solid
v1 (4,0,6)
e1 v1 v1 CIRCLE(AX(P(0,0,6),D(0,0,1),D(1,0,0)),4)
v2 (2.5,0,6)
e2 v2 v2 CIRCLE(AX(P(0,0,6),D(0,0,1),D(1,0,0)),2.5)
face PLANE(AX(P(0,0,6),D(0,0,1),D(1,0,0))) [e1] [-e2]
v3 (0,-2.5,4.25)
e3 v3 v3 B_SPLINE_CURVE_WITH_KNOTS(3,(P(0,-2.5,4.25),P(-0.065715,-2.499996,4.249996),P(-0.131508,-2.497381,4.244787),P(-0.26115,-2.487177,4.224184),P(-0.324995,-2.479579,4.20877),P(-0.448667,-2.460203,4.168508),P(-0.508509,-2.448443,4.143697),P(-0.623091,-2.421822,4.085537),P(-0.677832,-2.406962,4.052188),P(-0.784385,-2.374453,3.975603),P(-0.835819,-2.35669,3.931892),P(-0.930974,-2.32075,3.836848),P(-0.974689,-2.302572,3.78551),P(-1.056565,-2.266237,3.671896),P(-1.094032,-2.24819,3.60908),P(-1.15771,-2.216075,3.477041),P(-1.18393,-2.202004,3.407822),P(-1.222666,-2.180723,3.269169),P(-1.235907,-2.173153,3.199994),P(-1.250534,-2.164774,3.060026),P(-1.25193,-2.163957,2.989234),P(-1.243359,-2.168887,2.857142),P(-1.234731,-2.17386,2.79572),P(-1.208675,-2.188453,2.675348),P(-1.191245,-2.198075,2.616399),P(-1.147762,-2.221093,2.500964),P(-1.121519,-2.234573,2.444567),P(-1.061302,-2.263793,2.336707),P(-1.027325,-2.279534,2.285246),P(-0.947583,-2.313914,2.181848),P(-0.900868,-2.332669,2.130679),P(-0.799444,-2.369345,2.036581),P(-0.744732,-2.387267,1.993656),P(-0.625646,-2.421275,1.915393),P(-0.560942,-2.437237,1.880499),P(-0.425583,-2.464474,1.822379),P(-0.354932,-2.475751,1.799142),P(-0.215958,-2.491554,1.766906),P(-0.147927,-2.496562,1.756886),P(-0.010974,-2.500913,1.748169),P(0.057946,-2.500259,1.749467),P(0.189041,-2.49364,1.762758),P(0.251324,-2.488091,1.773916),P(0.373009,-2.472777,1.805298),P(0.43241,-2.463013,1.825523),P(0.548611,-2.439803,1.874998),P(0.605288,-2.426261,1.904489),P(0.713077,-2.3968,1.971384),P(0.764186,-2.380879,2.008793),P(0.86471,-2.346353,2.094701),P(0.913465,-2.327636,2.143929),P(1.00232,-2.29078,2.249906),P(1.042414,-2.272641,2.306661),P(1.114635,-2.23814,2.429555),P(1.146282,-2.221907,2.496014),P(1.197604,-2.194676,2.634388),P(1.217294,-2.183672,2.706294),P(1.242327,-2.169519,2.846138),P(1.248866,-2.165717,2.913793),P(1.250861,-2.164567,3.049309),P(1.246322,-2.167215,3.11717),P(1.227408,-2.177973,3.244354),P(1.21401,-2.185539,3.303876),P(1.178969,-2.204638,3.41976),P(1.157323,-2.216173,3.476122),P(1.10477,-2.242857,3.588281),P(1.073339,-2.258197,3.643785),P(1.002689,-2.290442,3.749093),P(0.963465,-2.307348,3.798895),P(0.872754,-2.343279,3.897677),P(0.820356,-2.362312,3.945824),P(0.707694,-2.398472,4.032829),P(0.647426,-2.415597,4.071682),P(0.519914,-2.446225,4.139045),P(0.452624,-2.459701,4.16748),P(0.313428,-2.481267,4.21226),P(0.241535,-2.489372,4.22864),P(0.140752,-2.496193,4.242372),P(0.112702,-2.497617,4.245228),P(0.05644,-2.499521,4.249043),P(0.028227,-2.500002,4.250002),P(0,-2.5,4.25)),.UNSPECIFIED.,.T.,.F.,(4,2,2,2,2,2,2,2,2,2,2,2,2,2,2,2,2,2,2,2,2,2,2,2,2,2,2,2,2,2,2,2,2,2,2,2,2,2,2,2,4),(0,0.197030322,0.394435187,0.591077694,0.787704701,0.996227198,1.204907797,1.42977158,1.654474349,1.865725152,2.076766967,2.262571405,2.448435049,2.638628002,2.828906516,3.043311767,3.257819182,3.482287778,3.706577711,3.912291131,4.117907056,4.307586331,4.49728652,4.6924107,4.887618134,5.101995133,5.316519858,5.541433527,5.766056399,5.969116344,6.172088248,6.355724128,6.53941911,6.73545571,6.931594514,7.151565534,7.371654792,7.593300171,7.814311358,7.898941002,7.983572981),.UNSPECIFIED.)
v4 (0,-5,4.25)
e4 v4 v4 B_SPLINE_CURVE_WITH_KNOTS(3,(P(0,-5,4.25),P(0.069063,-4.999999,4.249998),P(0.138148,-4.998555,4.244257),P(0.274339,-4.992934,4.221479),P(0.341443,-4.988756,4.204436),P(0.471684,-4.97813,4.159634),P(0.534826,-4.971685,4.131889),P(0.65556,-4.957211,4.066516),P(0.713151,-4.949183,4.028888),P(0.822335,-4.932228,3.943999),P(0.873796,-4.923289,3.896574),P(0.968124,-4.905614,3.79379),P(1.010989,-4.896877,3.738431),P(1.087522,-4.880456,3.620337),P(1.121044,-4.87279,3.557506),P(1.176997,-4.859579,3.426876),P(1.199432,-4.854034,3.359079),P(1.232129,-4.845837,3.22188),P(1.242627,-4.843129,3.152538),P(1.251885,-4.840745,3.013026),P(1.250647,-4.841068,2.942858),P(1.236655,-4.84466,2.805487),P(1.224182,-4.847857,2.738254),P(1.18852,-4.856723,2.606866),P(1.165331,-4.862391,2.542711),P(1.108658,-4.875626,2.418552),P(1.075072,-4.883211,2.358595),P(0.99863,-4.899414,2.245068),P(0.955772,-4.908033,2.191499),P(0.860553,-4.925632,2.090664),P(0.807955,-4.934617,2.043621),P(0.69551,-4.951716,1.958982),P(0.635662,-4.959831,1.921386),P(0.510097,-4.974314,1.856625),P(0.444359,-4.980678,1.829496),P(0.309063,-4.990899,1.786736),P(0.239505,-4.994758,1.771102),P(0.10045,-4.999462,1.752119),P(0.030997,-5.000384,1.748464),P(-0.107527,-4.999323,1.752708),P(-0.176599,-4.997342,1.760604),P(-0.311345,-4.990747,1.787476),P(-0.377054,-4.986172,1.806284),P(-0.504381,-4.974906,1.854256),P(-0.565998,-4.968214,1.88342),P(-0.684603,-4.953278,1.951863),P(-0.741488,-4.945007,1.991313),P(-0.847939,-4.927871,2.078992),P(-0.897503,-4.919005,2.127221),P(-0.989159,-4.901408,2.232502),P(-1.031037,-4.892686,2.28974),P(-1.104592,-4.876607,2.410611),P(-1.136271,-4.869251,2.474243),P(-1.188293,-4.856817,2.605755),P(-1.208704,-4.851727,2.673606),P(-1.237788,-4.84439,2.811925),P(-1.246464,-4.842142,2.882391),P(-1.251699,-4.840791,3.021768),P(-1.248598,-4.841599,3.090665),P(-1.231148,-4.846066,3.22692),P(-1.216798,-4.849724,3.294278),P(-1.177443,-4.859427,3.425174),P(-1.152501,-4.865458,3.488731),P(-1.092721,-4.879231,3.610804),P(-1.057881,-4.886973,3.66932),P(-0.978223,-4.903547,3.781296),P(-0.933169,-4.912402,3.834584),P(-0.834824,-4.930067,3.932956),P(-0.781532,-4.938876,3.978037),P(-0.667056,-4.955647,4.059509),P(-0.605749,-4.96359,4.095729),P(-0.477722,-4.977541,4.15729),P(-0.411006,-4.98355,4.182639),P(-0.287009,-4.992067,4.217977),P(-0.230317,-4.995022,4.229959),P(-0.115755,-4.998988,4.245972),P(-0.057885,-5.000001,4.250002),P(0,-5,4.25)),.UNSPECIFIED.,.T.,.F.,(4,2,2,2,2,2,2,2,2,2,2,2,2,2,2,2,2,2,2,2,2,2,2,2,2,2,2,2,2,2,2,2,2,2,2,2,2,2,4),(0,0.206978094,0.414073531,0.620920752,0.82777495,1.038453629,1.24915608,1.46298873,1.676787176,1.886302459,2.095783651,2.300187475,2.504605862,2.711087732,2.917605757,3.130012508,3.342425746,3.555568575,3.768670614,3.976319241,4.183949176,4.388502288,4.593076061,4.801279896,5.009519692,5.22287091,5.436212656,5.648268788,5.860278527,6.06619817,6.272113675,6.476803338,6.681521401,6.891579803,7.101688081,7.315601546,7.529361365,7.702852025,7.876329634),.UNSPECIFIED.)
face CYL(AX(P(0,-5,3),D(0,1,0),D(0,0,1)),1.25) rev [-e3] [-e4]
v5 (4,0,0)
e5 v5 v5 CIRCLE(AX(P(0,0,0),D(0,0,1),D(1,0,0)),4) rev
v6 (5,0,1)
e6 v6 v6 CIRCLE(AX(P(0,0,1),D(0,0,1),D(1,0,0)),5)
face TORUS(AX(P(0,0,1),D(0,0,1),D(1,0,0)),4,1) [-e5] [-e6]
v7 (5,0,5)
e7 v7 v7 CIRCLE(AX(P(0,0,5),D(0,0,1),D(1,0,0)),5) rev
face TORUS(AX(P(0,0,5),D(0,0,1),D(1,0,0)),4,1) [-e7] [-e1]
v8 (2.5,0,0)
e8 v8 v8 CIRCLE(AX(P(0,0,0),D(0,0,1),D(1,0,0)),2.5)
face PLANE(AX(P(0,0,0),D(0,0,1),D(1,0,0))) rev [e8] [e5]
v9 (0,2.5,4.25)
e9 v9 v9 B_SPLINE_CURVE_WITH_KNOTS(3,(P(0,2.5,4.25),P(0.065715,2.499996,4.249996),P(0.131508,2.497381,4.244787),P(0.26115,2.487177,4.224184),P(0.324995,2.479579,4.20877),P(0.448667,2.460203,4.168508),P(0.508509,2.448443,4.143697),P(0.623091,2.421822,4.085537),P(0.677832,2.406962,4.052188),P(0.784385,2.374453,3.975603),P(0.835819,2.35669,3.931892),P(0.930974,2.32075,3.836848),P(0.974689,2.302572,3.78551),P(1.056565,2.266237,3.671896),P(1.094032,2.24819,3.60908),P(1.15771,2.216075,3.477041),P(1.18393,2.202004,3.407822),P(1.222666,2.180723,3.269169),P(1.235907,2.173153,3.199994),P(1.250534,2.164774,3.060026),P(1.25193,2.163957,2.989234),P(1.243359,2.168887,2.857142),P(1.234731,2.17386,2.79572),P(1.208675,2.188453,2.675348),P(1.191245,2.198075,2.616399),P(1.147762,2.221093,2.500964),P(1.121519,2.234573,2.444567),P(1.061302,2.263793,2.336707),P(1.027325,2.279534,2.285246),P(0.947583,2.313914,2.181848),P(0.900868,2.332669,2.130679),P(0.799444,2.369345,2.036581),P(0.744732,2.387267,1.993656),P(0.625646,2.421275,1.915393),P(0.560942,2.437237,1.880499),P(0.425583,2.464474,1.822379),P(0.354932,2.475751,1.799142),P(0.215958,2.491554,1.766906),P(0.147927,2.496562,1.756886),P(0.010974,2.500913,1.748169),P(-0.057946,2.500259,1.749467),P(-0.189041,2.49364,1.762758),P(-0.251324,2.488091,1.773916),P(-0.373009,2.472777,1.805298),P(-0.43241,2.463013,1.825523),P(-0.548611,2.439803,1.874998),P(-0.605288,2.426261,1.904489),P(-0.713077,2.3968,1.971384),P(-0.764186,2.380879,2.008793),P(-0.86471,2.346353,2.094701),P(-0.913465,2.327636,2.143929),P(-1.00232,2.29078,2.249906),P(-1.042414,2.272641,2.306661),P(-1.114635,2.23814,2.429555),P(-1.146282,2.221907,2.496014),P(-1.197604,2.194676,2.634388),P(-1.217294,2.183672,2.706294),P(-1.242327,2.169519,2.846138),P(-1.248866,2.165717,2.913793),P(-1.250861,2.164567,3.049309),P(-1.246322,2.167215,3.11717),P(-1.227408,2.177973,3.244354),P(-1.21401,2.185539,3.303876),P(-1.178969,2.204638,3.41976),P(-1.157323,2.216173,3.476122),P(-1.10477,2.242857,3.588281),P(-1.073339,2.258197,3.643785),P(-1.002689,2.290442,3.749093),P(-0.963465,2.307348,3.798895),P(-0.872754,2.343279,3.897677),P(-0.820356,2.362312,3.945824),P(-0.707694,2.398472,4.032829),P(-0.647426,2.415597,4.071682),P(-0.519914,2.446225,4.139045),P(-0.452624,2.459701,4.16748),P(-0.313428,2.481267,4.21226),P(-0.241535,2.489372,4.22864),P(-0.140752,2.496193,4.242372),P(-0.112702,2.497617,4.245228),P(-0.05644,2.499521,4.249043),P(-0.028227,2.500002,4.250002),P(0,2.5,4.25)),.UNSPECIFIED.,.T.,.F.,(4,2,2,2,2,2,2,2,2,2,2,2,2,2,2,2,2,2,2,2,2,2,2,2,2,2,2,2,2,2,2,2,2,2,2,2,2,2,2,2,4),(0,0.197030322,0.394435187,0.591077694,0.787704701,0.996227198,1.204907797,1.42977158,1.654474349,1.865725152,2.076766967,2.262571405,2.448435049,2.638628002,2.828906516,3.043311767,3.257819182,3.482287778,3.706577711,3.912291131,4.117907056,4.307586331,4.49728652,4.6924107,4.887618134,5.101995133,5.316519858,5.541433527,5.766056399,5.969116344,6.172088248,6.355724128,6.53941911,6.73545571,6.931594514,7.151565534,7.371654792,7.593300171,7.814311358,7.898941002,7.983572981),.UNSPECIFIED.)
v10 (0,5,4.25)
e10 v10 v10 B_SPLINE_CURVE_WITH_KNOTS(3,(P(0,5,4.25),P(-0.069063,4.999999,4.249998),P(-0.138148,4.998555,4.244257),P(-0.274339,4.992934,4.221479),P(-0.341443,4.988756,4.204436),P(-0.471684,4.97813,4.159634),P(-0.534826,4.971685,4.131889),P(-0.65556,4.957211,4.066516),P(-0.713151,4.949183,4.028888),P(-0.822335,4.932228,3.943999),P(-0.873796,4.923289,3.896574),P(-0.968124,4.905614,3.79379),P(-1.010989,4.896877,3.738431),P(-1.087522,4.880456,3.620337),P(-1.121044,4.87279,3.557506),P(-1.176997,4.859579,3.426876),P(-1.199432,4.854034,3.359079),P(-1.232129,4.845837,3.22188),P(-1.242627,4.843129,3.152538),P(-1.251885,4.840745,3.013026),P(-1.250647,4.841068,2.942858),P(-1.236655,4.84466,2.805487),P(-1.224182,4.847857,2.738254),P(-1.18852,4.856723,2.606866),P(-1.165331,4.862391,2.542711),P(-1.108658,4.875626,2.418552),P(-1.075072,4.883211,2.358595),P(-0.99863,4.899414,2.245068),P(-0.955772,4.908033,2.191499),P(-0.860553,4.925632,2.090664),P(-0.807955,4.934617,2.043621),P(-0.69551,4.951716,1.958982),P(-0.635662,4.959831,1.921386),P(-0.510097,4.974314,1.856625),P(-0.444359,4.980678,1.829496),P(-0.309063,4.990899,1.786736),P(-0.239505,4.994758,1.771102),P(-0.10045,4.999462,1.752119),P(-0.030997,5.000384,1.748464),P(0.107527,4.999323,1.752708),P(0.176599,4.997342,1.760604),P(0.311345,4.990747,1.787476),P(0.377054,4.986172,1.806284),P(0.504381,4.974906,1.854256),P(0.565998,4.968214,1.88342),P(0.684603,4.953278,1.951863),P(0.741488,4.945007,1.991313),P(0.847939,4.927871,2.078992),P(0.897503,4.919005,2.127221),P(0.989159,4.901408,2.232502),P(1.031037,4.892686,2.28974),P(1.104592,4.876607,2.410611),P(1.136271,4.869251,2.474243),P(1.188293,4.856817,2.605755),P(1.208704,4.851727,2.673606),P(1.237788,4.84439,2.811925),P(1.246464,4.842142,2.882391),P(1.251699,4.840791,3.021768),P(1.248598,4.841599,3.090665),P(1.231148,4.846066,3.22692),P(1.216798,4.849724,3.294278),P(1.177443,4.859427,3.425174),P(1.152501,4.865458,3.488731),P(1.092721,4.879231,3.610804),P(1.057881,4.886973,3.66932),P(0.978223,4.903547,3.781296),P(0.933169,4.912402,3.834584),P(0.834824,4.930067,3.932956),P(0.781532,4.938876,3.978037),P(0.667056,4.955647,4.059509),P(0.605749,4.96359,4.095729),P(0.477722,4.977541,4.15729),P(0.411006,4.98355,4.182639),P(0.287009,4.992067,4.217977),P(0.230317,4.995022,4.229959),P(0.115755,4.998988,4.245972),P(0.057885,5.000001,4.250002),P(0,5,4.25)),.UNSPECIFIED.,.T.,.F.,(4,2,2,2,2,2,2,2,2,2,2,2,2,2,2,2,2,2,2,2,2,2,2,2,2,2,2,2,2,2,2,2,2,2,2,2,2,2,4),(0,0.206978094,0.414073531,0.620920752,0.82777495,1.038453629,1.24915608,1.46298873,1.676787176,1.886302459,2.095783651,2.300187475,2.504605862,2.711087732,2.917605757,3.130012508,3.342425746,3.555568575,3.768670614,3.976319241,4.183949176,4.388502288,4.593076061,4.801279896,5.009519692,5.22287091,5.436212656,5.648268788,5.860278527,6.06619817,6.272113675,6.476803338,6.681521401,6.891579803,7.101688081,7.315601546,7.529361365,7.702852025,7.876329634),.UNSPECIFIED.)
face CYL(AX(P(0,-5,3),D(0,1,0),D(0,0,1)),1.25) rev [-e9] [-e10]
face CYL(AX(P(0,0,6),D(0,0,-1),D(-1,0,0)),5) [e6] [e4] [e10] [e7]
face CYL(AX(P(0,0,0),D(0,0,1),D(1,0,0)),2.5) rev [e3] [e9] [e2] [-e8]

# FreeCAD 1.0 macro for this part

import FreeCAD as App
import Part
import Sketcher
Q = App.Units.Quantity


def edges_at(feature, points):
    """Names of the edges that pass closest to the given points."""
    edges = feature.Shape.Edges
    near = lambda p: min(range(len(edges)), key=lambda i: edges[i].distToShape(Part.Vertex(*p))[0])
    return sorted({f"Edge{near(p) + 1}" for p in points})

doc = App.newDocument("Part")
body = doc.addObject("PartDesign::Body", "Body")

# Sketch on XY plane
sketch1 = body.newObject("Sketcher::SketchObject", "Sketch")
sketch1.AttachmentSupport = (doc.getObject("XY_Plane"), [""])
sketch1.MapMode = "FlatFace"
sketch1.addGeometry(Part.Circle(App.Vector(0, 0, 0), App.Vector(0, 0, 1), 5), False)
sketch1.addConstraint(Sketcher.Constraint("Coincident", 0, 3, -1, 1))
sketch1.addConstraint(Sketcher.Constraint("Diameter", 0, Q("10 mm")))
pad1 = body.newObject("PartDesign::Pad", "Pad")
pad1.Profile = sketch1
pad1.Length = 6
doc.recompute()

fillet = body.newObject("PartDesign::Fillet", "Fillet")
fillet.Base = (pad1, edges_at(pad1, [(-5, 0, 0), (-5, 0, 6)]))
fillet.Radius = 1

# Sketch on XY plane
sketch2 = body.newObject("Sketcher::SketchObject", "Sketch001")
sketch2.AttachmentSupport = (doc.getObject("XY_Plane"), [""])
sketch2.MapMode = "FlatFace"
sketch2.AttachmentOffset = App.Placement(App.Vector(0, 0, 6), App.Rotation())
sketch2.addGeometry(Part.Circle(App.Vector(0, 0, 0), App.Vector(0, 0, 1), 2.5), False)
sketch2.addConstraint(Sketcher.Constraint("Coincident", 0, 3, -1, 1))
sketch2.addConstraint(Sketcher.Constraint("Diameter", 0, Q("5 mm")))
pocket1 = body.newObject("PartDesign::Pocket", "Pocket")
pocket1.Profile = sketch2
pocket1.Type = "ThroughAll"
pocket1.Midplane = True

# Sketch on XZ plane
sketch3 = body.newObject("Sketcher::SketchObject", "Sketch002")
sketch3.AttachmentSupport = (doc.getObject("XZ_Plane"), [""])
sketch3.MapMode = "FlatFace"
sketch3.addGeometry(Part.Circle(App.Vector(0, 3, 0), App.Vector(0, 0, 1), 1.2), False)
sketch3.addConstraint(Sketcher.Constraint("PointOnObject", 0, 3, -2))
sketch3.addConstraint(Sketcher.Constraint("Diameter", 0, Q("2.5 mm")))
sketch3.addConstraint(Sketcher.Constraint("DistanceY", -1, 1, 0, 3, Q("3 mm")))
pocket2 = body.newObject("PartDesign::Pocket", "Pocket001")
pocket2.Profile = sketch3
pocket2.Type = "ThroughAll"
pocket2.Midplane = True

doc.recompute()
